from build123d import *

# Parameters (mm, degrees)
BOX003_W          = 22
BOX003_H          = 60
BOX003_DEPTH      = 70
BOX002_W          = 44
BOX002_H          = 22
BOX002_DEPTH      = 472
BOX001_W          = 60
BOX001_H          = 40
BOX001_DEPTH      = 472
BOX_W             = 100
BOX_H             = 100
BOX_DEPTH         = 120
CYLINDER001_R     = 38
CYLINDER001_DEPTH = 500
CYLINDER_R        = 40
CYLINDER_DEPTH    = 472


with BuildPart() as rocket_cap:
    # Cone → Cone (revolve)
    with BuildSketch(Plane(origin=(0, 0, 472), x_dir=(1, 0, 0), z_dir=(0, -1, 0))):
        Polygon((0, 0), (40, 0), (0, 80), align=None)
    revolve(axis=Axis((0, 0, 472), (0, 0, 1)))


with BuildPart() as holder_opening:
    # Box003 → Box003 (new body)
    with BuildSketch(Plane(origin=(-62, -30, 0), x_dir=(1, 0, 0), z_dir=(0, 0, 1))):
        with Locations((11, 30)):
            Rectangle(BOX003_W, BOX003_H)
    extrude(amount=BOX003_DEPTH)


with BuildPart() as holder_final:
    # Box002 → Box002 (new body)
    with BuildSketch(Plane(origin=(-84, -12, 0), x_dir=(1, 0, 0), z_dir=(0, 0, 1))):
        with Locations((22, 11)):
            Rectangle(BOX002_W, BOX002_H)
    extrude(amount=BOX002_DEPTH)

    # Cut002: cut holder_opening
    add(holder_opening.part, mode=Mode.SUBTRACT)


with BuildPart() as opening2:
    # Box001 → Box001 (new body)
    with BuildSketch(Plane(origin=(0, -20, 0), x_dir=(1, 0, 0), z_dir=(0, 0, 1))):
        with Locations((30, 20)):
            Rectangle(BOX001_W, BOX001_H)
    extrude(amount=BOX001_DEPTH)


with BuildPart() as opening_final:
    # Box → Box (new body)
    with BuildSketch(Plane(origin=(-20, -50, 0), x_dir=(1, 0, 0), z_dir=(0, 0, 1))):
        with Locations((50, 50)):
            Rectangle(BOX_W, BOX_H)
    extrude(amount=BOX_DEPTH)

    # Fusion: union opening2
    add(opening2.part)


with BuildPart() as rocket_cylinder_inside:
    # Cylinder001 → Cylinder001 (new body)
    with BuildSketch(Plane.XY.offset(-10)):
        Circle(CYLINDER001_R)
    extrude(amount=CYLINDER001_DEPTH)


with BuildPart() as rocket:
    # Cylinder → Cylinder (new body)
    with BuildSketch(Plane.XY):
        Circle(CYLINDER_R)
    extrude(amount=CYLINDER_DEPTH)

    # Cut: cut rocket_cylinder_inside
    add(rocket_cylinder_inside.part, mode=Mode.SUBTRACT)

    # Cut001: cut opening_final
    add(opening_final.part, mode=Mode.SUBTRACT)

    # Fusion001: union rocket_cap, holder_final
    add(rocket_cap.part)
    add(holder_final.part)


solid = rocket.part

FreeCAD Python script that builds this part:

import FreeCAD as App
import Part
import Sketcher

V = App.Vector
Q = App.Units.Quantity

doc = App.newDocument("Part")
body = doc.addObject("PartDesign::Body", "Body")

# Sketch on XZ plane
sketch1 = doc.addObject("Sketcher::SketchObject", "Sketch")
body.addObject(sketch1)
sketch1.AttachmentSupport = (doc.XZ_Plane, [""])
sketch1.MapMode = "FlatFace"
sketch1.addGeometry(Part.LineSegment(V(0, 472, 0), V(40, 472, 0)), False)
sketch1.addGeometry(Part.LineSegment(V(40, 472, 0), V(0, 552, 0)), False)
sketch1.addGeometry(Part.LineSegment(V(0, 552, 0), V(0, 472, 0)), False)
sketch1.addConstraint(Sketcher.Constraint("Coincident", 0, 2, 1, 1))
sketch1.addConstraint(Sketcher.Constraint("Coincident", 1, 2, 2, 1))
sketch1.addConstraint(Sketcher.Constraint("Coincident", 2, 2, 0, 1))
sketch1.addConstraint(Sketcher.Constraint("Horizontal", 0))
sketch1.addConstraint(Sketcher.Constraint("Vertical", 2))
sketch1.addConstraint(Sketcher.Constraint("PointOnObject", 1, 2, -2))
sketch1.addConstraint(Sketcher.Constraint("DistanceX", 0, 1, 0, 2, Q("40 mm")))
sketch1.addConstraint(Sketcher.Constraint("DistanceY", 2, 2, 2, 1, Q("80 mm")))
sketch1.addConstraint(Sketcher.Constraint("DistanceY", -1, 1, 0, 2, Q("472 mm")))
revolution = doc.addObject("PartDesign::Revolution", "Revolution")
body.addObject(revolution)
revolution.Profile = sketch1
revolution.ReferenceAxis = (sketch1, ["V_Axis"])
revolution.Angle = 360
body2 = doc.addObject("PartDesign::Body", "Body001")

# Sketch on XY plane
sketch2 = doc.addObject("Sketcher::SketchObject", "Sketch001")
body2.addObject(sketch2)
sketch2.AttachmentSupport = (doc.getObject("XY_Plane001"), [""])
sketch2.MapMode = "FlatFace"
sketch2.addGeometry(Part.LineSegment(V(-62, 30, 0), V(-62, -30, 0)), False)
sketch2.addGeometry(Part.LineSegment(V(-62, -30, 0), V(-40, -30, 0)), False)
sketch2.addGeometry(Part.LineSegment(V(-40, -30, 0), V(-40, 30, 0)), False)
sketch2.addGeometry(Part.LineSegment(V(-40, 30, 0), V(-62, 30, 0)), False)
sketch2.addConstraint(Sketcher.Constraint("Coincident", 0, 2, 1, 1))
sketch2.addConstraint(Sketcher.Constraint("Coincident", 1, 2, 2, 1))
sketch2.addConstraint(Sketcher.Constraint("Coincident", 2, 2, 3, 1))
sketch2.addConstraint(Sketcher.Constraint("Coincident", 3, 2, 0, 1))
sketch2.addConstraint(Sketcher.Constraint("Vertical", 0))
sketch2.addConstraint(Sketcher.Constraint("Horizontal", 1))
sketch2.addConstraint(Sketcher.Constraint("Vertical", 2))
sketch2.addConstraint(Sketcher.Constraint("Horizontal", 3))
sketch2.addConstraint(Sketcher.Constraint("DistanceX", 1, 1, 1, 2, Q("22 mm")))
sketch2.addConstraint(Sketcher.Constraint("DistanceY", 0, 2, 0, 1, Q("60 mm")))
sketch2.addConstraint(Sketcher.Constraint("DistanceX", 0, 2, -1, 1, Q("62 mm")))
sketch2.addConstraint(Sketcher.Constraint("DistanceY", 0, 2, -1, 1, Q("30 mm")))
pad1 = doc.addObject("PartDesign::Pad", "Pad")
body2.addObject(pad1)
pad1.Profile = sketch2
pad1.Length = 70
body3 = doc.addObject("PartDesign::Body", "Body002")

# Sketch on XY plane
sketch3 = doc.addObject("Sketcher::SketchObject", "Sketch002")
body3.addObject(sketch3)
sketch3.AttachmentSupport = (doc.getObject("XY_Plane002"), [""])
sketch3.MapMode = "FlatFace"
sketch3.addGeometry(Part.LineSegment(V(-84, 10, 0), V(-84, -12, 0)), False)
sketch3.addGeometry(Part.LineSegment(V(-84, -12, 0), V(-40, -12, 0)), False)
sketch3.addGeometry(Part.LineSegment(V(-40, -12, 0), V(-40, 10, 0)), False)
sketch3.addGeometry(Part.LineSegment(V(-40, 10, 0), V(-84, 10, 0)), False)
sketch3.addConstraint(Sketcher.Constraint("Coincident", 0, 2, 1, 1))
sketch3.addConstraint(Sketcher.Constraint("Coincident", 1, 2, 2, 1))
sketch3.addConstraint(Sketcher.Constraint("Coincident", 2, 2, 3, 1))
sketch3.addConstraint(Sketcher.Constraint("Coincident", 3, 2, 0, 1))
sketch3.addConstraint(Sketcher.Constraint("Vertical", 0))
sketch3.addConstraint(Sketcher.Constraint("Horizontal", 1))
sketch3.addConstraint(Sketcher.Constraint("Vertical", 2))
sketch3.addConstraint(Sketcher.Constraint("Horizontal", 3))
sketch3.addConstraint(Sketcher.Constraint("DistanceX", 1, 1, 1, 2, Q("44 mm")))
sketch3.addConstraint(Sketcher.Constraint("DistanceY", 0, 2, 0, 1, Q("22 mm")))
sketch3.addConstraint(Sketcher.Constraint("DistanceX", 0, 2, -1, 1, Q("84 mm")))
sketch3.addConstraint(Sketcher.Constraint("DistanceY", 0, 2, -1, 1, Q("12 mm")))
pad2 = doc.addObject("PartDesign::Pad", "Pad001")
body3.addObject(pad2)
pad2.Profile = sketch3
pad2.Length = 472
doc.recompute()

boolean = doc.addObject("PartDesign::Boolean", "Boolean")
body3.addObject(boolean)
boolean.Type = "Cut"
boolean.addObjects([body2])
body4 = doc.addObject("PartDesign::Body", "Body003")

# Sketch on XY plane
sketch4 = doc.addObject("Sketcher::SketchObject", "Sketch003")
body4.addObject(sketch4)
sketch4.AttachmentSupport = (doc.getObject("XY_Plane003"), [""])
sketch4.MapMode = "FlatFace"
sketch4.addGeometry(Part.LineSegment(V(0, 20, 0), V(0, -20, 0)), False)
sketch4.addGeometry(Part.LineSegment(V(0, -20, 0), V(60, -20, 0)), False)
sketch4.addGeometry(Part.LineSegment(V(60, -20, 0), V(60, 20, 0)), False)
sketch4.addGeometry(Part.LineSegment(V(60, 20, 0), V(0, 20, 0)), False)
sketch4.addConstraint(Sketcher.Constraint("Coincident", 0, 2, 1, 1))
sketch4.addConstraint(Sketcher.Constraint("Coincident", 1, 2, 2, 1))
sketch4.addConstraint(Sketcher.Constraint("Coincident", 2, 2, 3, 1))
sketch4.addConstraint(Sketcher.Constraint("Coincident", 3, 2, 0, 1))
sketch4.addConstraint(Sketcher.Constraint("Vertical", 0))
sketch4.addConstraint(Sketcher.Constraint("Horizontal", 1))
sketch4.addConstraint(Sketcher.Constraint("Vertical", 2))
sketch4.addConstraint(Sketcher.Constraint("Horizontal", 3))
sketch4.addConstraint(Sketcher.Constraint("Symmetric", 0, 2, 3, 2, -1, 1))
sketch4.addConstraint(Sketcher.Constraint("DistanceX", 1, 1, 1, 2, Q("60 mm")))
sketch4.addConstraint(Sketcher.Constraint("DistanceY", 0, 2, 0, 1, Q("40 mm")))
pad3 = doc.addObject("PartDesign::Pad", "Pad002")
body4.addObject(pad3)
pad3.Profile = sketch4
pad3.Length = 472
body5 = doc.addObject("PartDesign::Body", "Body004")

# Sketch on XY plane
sketch5 = doc.addObject("Sketcher::SketchObject", "Sketch004")
body5.addObject(sketch5)
sketch5.AttachmentSupport = (doc.getObject("XY_Plane004"), [""])
sketch5.MapMode = "FlatFace"
sketch5.addGeometry(Part.LineSegment(V(-20, 50, 0), V(-20, -50, 0)), False)
sketch5.addGeometry(Part.LineSegment(V(-20, -50, 0), V(80, -50, 0)), False)
sketch5.addGeometry(Part.LineSegment(V(80, -50, 0), V(80, 50, 0)), False)
sketch5.addGeometry(Part.LineSegment(V(80, 50, 0), V(-20, 50, 0)), False)
sketch5.addConstraint(Sketcher.Constraint("Coincident", 0, 2, 1, 1))
sketch5.addConstraint(Sketcher.Constraint("Coincident", 1, 2, 2, 1))
sketch5.addConstraint(Sketcher.Constraint("Coincident", 2, 2, 3, 1))
sketch5.addConstraint(Sketcher.Constraint("Coincident", 3, 2, 0, 1))
sketch5.addConstraint(Sketcher.Constraint("Vertical", 0))
sketch5.addConstraint(Sketcher.Constraint("Horizontal", 1))
sketch5.addConstraint(Sketcher.Constraint("Vertical", 2))
sketch5.addConstraint(Sketcher.Constraint("Horizontal", 3))
sketch5.addConstraint(Sketcher.Constraint("Equal", 3, 0))
sketch5.addConstraint(Sketcher.Constraint("DistanceX", 1, 1, 1, 2, Q("100 mm")))
sketch5.addConstraint(Sketcher.Constraint("DistanceX", 0, 2, -1, 1, Q("20 mm")))
sketch5.addConstraint(Sketcher.Constraint("DistanceY", 0, 2, -1, 1, Q("50 mm")))
pad4 = doc.addObject("PartDesign::Pad", "Pad003")
body5.addObject(pad4)
pad4.Profile = sketch5
pad4.Length = 120
doc.recompute()

boolean2 = doc.addObject("PartDesign::Boolean", "Boolean001")
body5.addObject(boolean2)
boolean2.Type = "Fuse"
boolean2.addObjects([body4])
body6 = doc.addObject("PartDesign::Body", "Body005")

# Sketch on XY plane
sketch6 = doc.addObject("Sketcher::SketchObject", "Sketch005")
body6.addObject(sketch6)
sketch6.AttachmentSupport = (doc.getObject("XY_Plane005"), [""])
sketch6.MapMode = "FlatFace"
sketch6.AttachmentOffset = App.Placement(V(0, 0, -10), App.Rotation())
sketch6.addGeometry(Part.Circle(V(0, 0, 0), V(0, 0, 1), 38), False)
sketch6.addConstraint(Sketcher.Constraint("Coincident", 0, 3, -1, 1))
sketch6.addConstraint(Sketcher.Constraint("Diameter", 0, Q("76 mm")))
pad5 = doc.addObject("PartDesign::Pad", "Pad004")
body6.addObject(pad5)
pad5.Profile = sketch6
pad5.Length = 500
body7 = doc.addObject("PartDesign::Body", "Body006")
body7.AllowCompound = True

# Sketch on XY plane
sketch7 = doc.addObject("Sketcher::SketchObject", "Sketch006")
body7.addObject(sketch7)
sketch7.AttachmentSupport = (doc.getObject("XY_Plane006"), [""])
sketch7.MapMode = "FlatFace"
sketch7.addGeometry(Part.Circle(V(0, 0, 0), V(0, 0, 1), 40), False)
sketch7.addConstraint(Sketcher.Constraint("Coincident", 0, 3, -1, 1))
sketch7.addConstraint(Sketcher.Constraint("Diameter", 0, Q("80 mm")))
pad6 = doc.addObject("PartDesign::Pad", "Pad005")
body7.addObject(pad6)
pad6.Profile = sketch7
pad6.Length = 472
doc.recompute()

boolean3 = doc.addObject("PartDesign::Boolean", "Boolean002")
body7.addObject(boolean3)
boolean3.Type = "Cut"
boolean3.addObjects([body6])
doc.recompute()

boolean4 = doc.addObject("PartDesign::Boolean", "Boolean003")
body7.addObject(boolean4)
boolean4.Type = "Cut"
boolean4.addObjects([body5])
doc.recompute()

boolean5 = doc.addObject("PartDesign::Boolean", "Boolean004")
body7.addObject(boolean5)
boolean5.Type = "Fuse"
boolean5.addObjects([body])
doc.recompute()

boolean6 = doc.addObject("PartDesign::Boolean", "Boolean005")
body7.addObject(boolean6)
boolean6.Type = "Fuse"
boolean6.addObjects([body3])

doc.recompute()
